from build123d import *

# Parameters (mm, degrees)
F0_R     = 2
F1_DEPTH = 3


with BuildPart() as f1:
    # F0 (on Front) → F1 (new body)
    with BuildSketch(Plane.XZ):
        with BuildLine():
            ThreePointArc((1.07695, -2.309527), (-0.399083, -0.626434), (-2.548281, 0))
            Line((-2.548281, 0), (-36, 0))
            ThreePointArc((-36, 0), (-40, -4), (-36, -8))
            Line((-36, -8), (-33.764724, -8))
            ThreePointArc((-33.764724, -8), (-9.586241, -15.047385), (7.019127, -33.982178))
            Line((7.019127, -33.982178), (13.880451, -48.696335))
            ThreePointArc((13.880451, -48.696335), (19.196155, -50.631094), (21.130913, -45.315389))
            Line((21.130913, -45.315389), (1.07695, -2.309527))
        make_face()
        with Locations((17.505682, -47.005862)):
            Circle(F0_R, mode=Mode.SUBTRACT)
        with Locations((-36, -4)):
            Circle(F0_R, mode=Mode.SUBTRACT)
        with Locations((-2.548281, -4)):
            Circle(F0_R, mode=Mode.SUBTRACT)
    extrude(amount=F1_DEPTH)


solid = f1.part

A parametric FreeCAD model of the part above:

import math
import FreeCAD as App
import Part
import Sketcher
Q = App.Units.Quantity

doc = App.newDocument("Part")
body = doc.addObject("PartDesign::Body", "Body")

# Sketch on XZ plane
sketch1 = body.newObject("Sketcher::SketchObject", "Sketch")
sketch1.AttachmentSupport = (doc.getObject("XZ_Plane"), [""])
sketch1.MapMode = "FlatFace"
sketch1.addGeometry([
    Part.ArcOfCircle(Part.Circle(App.Vector(-2.5, -4, 0), App.Vector(0, 0, 1), 4), math.radians(25), math.radians(90)),  # 0
    Part.LineSegment(App.Vector(-2.5, 0, 0), App.Vector(-36, 0, 0)),  # 1
    Part.ArcOfCircle(Part.Circle(App.Vector(-36, -4, 0), App.Vector(0, 0, 1), 4), math.radians(90), math.radians(270)),  # 2
    Part.LineSegment(App.Vector(-36, -8, 0), App.Vector(-33.8, -8, 0)),  # 3
    Part.ArcOfCircle(Part.Circle(App.Vector(-33.8, -53, 0), App.Vector(0, 0, 1), 45), math.radians(25), math.radians(90)),  # 4
    Part.LineSegment(App.Vector(7, -34, 0), App.Vector(13.9, -48.7, 0)),  # 5
    Part.ArcOfCircle(Part.Circle(App.Vector(17.5, -47, 0), App.Vector(0, 0, 1), 4), math.radians(-155), math.radians(25)),  # 6
    Part.LineSegment(App.Vector(21.1, -45.3, 0), App.Vector(1.1, -2.3, 0)),  # 7
    Part.Circle(App.Vector(17.5, -47, 0), App.Vector(0, 0, 1), 2),  # 8
    Part.Circle(App.Vector(-36, -4, 0), App.Vector(0, 0, 1), 2),  # 9
    Part.Circle(App.Vector(-2.5, -4, 0), App.Vector(0, 0, 1), 2),  # 10
], False)
sketch1.addConstraint([
    Sketcher.Constraint("Tangent", 0, 2, 1, 1),
    Sketcher.Constraint("Tangent", 1, 2, 2, 1),
    Sketcher.Constraint("Tangent", 2, 2, 3, 1),
    Sketcher.Constraint("Tangent", 3, 2, 4, 2),
    Sketcher.Constraint("Tangent", 4, 1, 5, 1),
    Sketcher.Constraint("Tangent", 5, 2, 6, 1),
    Sketcher.Constraint("Tangent", 6, 2, 7, 1),
    Sketcher.Constraint("Tangent", 7, 2, 0, 1),
    Sketcher.Constraint("Horizontal", 1),
    Sketcher.Constraint("Horizontal", 3),
    Sketcher.Constraint("Coincident", 8, 3, 6, 3),
    Sketcher.Constraint("Coincident", 9, 3, 2, 3),
    Sketcher.Constraint("Coincident", 10, 3, 0, 3),
    Sketcher.Constraint("Equal", 0, 2),
    Sketcher.Constraint("Equal", 2, 6),
    Sketcher.Constraint("Equal", 8, 9),
    Sketcher.Constraint("Equal", 9, 10),
    Sketcher.Constraint("PointOnObject", 0, 2, -1),
    Sketcher.Constraint("Parallel", 5, 7),
    Sketcher.Constraint("Diameter", 8, Q("4 mm")),
    Sketcher.Constraint("Radius", 0, Q("4 mm")),
    Sketcher.Constraint("Radius", 4, Q("45 mm")),
    Sketcher.Constraint("Angle", 5, Q("-65 deg")),
    Sketcher.Constraint("DistanceX", 2, 3, -1, 1, Q("36 mm")),
    Sketcher.Constraint("DistanceX", 1, 2, 1, 1, Q("33.451719 mm")),
    Sketcher.Constraint("Distance", 7, Q("47.451719 mm")),
])
pad1 = body.newObject("PartDesign::Pad", "Pad")
pad1.Profile = sketch1
pad1.Length = 3

doc.recompute()
